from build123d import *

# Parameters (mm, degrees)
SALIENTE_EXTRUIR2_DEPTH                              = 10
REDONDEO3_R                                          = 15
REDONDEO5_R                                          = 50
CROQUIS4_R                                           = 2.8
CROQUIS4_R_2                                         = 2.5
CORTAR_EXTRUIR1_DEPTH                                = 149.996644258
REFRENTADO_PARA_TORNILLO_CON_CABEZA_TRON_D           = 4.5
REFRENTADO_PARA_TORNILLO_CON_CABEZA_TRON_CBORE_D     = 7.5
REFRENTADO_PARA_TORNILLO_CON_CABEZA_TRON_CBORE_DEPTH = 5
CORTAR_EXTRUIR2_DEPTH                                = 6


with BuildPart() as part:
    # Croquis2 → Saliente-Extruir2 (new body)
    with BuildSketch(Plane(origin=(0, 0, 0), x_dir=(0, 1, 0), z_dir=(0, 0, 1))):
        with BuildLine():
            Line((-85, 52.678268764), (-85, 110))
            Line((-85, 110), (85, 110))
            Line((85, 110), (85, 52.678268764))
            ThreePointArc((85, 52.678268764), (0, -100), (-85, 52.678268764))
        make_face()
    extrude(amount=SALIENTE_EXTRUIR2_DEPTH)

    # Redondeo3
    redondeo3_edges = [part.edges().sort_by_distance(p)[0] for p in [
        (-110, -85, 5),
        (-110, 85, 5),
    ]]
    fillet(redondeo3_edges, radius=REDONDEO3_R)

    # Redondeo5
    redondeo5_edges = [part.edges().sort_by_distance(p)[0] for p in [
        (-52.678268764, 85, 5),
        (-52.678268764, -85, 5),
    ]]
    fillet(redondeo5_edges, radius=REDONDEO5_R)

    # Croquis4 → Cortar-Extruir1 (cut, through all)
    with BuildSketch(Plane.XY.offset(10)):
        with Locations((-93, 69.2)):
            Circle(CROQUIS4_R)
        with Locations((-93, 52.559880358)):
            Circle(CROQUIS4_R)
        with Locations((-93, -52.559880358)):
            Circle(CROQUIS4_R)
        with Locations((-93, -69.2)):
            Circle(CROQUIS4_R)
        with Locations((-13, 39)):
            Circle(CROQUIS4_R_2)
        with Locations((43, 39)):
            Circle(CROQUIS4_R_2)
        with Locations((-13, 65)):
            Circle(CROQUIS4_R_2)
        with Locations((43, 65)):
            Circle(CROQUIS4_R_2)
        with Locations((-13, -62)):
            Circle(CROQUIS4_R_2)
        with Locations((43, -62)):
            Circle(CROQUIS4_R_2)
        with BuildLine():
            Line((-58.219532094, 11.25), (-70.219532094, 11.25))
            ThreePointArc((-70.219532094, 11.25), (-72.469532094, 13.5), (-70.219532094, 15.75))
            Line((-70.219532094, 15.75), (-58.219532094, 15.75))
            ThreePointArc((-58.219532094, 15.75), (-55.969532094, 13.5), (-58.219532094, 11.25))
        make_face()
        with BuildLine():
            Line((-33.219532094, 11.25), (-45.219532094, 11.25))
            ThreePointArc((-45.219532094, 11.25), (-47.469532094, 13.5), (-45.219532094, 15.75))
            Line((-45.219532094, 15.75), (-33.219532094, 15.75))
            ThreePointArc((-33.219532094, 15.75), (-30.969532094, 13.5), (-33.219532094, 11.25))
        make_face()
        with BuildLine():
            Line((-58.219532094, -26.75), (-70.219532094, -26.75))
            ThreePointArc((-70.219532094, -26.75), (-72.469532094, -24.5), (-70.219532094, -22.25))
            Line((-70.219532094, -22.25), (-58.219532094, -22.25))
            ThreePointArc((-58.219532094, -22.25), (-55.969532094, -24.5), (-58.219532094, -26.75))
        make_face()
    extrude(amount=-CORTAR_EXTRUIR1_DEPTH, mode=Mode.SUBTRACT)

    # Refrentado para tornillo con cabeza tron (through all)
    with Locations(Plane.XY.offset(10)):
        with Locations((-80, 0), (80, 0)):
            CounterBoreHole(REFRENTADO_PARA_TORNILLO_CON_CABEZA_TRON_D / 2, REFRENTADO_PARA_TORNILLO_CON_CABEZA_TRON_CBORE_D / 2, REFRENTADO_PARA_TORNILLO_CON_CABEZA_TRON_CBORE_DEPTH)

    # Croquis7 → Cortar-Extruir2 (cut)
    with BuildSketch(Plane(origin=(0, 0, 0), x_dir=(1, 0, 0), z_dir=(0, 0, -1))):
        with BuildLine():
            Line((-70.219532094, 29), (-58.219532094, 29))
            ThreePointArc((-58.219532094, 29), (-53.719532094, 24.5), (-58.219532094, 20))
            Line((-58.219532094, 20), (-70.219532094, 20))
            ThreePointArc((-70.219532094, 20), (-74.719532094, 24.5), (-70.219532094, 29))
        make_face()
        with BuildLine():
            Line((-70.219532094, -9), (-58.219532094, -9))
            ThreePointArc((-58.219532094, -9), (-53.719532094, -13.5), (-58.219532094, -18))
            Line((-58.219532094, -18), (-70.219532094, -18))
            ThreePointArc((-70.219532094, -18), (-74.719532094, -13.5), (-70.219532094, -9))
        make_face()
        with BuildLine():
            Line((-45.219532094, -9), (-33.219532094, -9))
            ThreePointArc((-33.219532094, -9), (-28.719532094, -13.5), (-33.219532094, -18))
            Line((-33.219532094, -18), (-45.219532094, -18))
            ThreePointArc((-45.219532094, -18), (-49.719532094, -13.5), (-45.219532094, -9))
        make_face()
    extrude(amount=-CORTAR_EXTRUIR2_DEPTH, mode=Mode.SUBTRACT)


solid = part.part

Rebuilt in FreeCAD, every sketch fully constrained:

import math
import FreeCAD as App
import Part
import Sketcher
from FreeCAD import Vector


def edges_at(feature, points):
    """Names of the edges that pass closest to the given points."""
    edges = feature.Shape.Edges
    near = lambda p: min(range(len(edges)), key=lambda i: edges[i].distToShape(Part.Vertex(*p))[0])
    return sorted({f"Edge{near(p) + 1}" for p in points})

doc = App.newDocument("Part")
body = doc.addObject("PartDesign::Body", "Body")

# Sketch on XY plane
sketch1 = body.newObject("Sketcher::SketchObject", "Sketch")
sketch1.AttachmentSupport = (doc.getObject("XY_Plane"), [""])
sketch1.MapMode = "FlatFace"
sketch1.addGeometry(Part.LineSegment(Vector(-110, -85, 0), Vector(-53, -85, 0)), False)
sketch1.addGeometry(Part.ArcOfCircle(Part.Circle(Vector(0, 0, 0), Vector(0, 0, 1), 100), math.radians(-122), math.radians(122)), False)
sketch1.addGeometry(Part.LineSegment(Vector(-53, 85, 0), Vector(-110, 85, 0)), False)
sketch1.addGeometry(Part.LineSegment(Vector(-110, 85, 0), Vector(-110, -85, 0)), False)
sketch1.addConstraint(Sketcher.Constraint("Coincident", 0, 2, 1, 1))
sketch1.addConstraint(Sketcher.Constraint("Coincident", 1, 2, 2, 1))
sketch1.addConstraint(Sketcher.Constraint("Coincident", 2, 2, 3, 1))
sketch1.addConstraint(Sketcher.Constraint("Coincident", 3, 2, 0, 1))
sketch1.addConstraint(Sketcher.Constraint("Horizontal", 0))
sketch1.addConstraint(Sketcher.Constraint("Horizontal", 2))
sketch1.addConstraint(Sketcher.Constraint("Vertical", 3))
sketch1.addConstraint(Sketcher.Constraint("Coincident", 1, 3, -1, 1))
sketch1.addConstraint(Sketcher.Constraint("Vertical", 0, 2, 1, 2))
sketch1.addConstraint(Sketcher.Constraint("Radius", 1, 100.0))
sketch1.addConstraint(Sketcher.Constraint("DistanceY", 3, 2, 3, 1, 170.0))
sketch1.addConstraint(Sketcher.Constraint("DistanceX", 2, 2, -1, 1, 110.0))
pad1 = body.newObject("PartDesign::Pad", "Pad")
pad1.Profile = sketch1
pad1.Length = 10
doc.recompute()

fillet = body.newObject("PartDesign::Fillet", "Fillet")
fillet.Base = (pad1, edges_at(pad1, [(-110, -85, 5), (-110, 85, 5)]))
fillet.Radius = 15
doc.recompute()

fillet2 = body.newObject("PartDesign::Fillet", "Fillet001")
fillet2.Base = (fillet, edges_at(fillet, [(-52.678, 85, 5), (-52.678, -85, 5)]))
fillet2.Radius = 50

# Sketch on XY plane
sketch2 = body.newObject("Sketcher::SketchObject", "Sketch001")
sketch2.AttachmentSupport = (doc.getObject("XY_Plane"), [""])
sketch2.MapMode = "FlatFace"
sketch2.AttachmentOffset = App.Placement(Vector(0, 0, 10), App.Rotation())
sketch2.addGeometry(Part.Circle(Vector(-93, 69.2, 0), Vector(0, 0, 1), 2.8), False)
sketch2.addGeometry(Part.Circle(Vector(-93, 52.6, 0), Vector(0, 0, 1), 2.8), False)
sketch2.addGeometry(Part.Circle(Vector(-93, -52.6, 0), Vector(0, 0, 1), 2.8), False)
sketch2.addGeometry(Part.Circle(Vector(-93, -69.2, 0), Vector(0, 0, 1), 2.8), False)
sketch2.addGeometry(Part.Circle(Vector(-13, 39, 0), Vector(0, 0, 1), 2.5), False)
sketch2.addGeometry(Part.Circle(Vector(43, 39, 0), Vector(0, 0, 1), 2.5), False)
sketch2.addGeometry(Part.Circle(Vector(-13, 65, 0), Vector(0, 0, 1), 2.5), False)
sketch2.addGeometry(Part.Circle(Vector(43, 65, 0), Vector(0, 0, 1), 2.5), False)
sketch2.addGeometry(Part.Circle(Vector(-13, -62, 0), Vector(0, 0, 1), 2.5), False)
sketch2.addGeometry(Part.Circle(Vector(43, -62, 0), Vector(0, 0, 1), 2.5), False)
sketch2.addGeometry(Part.LineSegment(Vector(-70.2, 11.2, 0), Vector(-58.2, 11.2, 0)), False)
sketch2.addGeometry(Part.ArcOfCircle(Part.Circle(Vector(-58.2, 13.5, 0), Vector(0, 0, 1), 2.2), math.radians(-90), math.radians(90)), False)
sketch2.addGeometry(Part.LineSegment(Vector(-58.2, 15.8, 0), Vector(-70.2, 15.8, 0)), False)
sketch2.addGeometry(Part.ArcOfCircle(Part.Circle(Vector(-70.2, 13.5, 0), Vector(0, 0, 1), 2.2), math.radians(90), math.radians(270)), False)
sketch2.addGeometry(Part.LineSegment(Vector(-45.2, 11.2, 0), Vector(-33.2, 11.2, 0)), False)
sketch2.addGeometry(Part.ArcOfCircle(Part.Circle(Vector(-33.2, 13.5, 0), Vector(0, 0, 1), 2.2), math.radians(-90), math.radians(90)), False)
sketch2.addGeometry(Part.LineSegment(Vector(-33.2, 15.8, 0), Vector(-45.2, 15.8, 0)), False)
sketch2.addGeometry(Part.ArcOfCircle(Part.Circle(Vector(-45.2, 13.5, 0), Vector(0, 0, 1), 2.2), math.radians(90), math.radians(270)), False)
sketch2.addGeometry(Part.LineSegment(Vector(-70.2, -26.8, 0), Vector(-58.2, -26.8, 0)), False)
sketch2.addGeometry(Part.ArcOfCircle(Part.Circle(Vector(-58.2, -24.5, 0), Vector(0, 0, 1), 2.2), math.radians(-90), math.radians(90)), False)
sketch2.addGeometry(Part.LineSegment(Vector(-58.2, -22.2, 0), Vector(-70.2, -22.2, 0)), False)
sketch2.addGeometry(Part.ArcOfCircle(Part.Circle(Vector(-70.2, -24.5, 0), Vector(0, 0, 1), 2.2), math.radians(90), math.radians(270)), False)
sketch2.addConstraint(Sketcher.Constraint("Tangent", 10, 2, 11, 1))
sketch2.addConstraint(Sketcher.Constraint("Tangent", 11, 2, 12, 1))
sketch2.addConstraint(Sketcher.Constraint("Tangent", 12, 2, 13, 1))
sketch2.addConstraint(Sketcher.Constraint("Tangent", 13, 2, 10, 1))
sketch2.addConstraint(Sketcher.Constraint("Tangent", 14, 2, 15, 1))
sketch2.addConstraint(Sketcher.Constraint("Tangent", 15, 2, 16, 1))
sketch2.addConstraint(Sketcher.Constraint("Tangent", 16, 2, 17, 1))
sketch2.addConstraint(Sketcher.Constraint("Tangent", 17, 2, 14, 1))
sketch2.addConstraint(Sketcher.Constraint("Tangent", 18, 2, 19, 1))
sketch2.addConstraint(Sketcher.Constraint("Tangent", 19, 2, 20, 1))
sketch2.addConstraint(Sketcher.Constraint("Tangent", 20, 2, 21, 1))
sketch2.addConstraint(Sketcher.Constraint("Tangent", 21, 2, 18, 1))
sketch2.addConstraint(Sketcher.Constraint("Horizontal", 10))
sketch2.addConstraint(Sketcher.Constraint("Horizontal", 12))
sketch2.addConstraint(Sketcher.Constraint("Horizontal", 14))
sketch2.addConstraint(Sketcher.Constraint("Horizontal", 16))
sketch2.addConstraint(Sketcher.Constraint("Horizontal", 18))
sketch2.addConstraint(Sketcher.Constraint("Horizontal", 20))
sketch2.addConstraint(Sketcher.Constraint("Equal", 0, 1))
sketch2.addConstraint(Sketcher.Constraint("Equal", 1, 2))
sketch2.addConstraint(Sketcher.Constraint("Equal", 2, 3))
sketch2.addConstraint(Sketcher.Constraint("Equal", 4, 5))
sketch2.addConstraint(Sketcher.Constraint("Equal", 5, 6))
sketch2.addConstraint(Sketcher.Constraint("Equal", 6, 7))
sketch2.addConstraint(Sketcher.Constraint("Equal", 7, 8))
sketch2.addConstraint(Sketcher.Constraint("Equal", 8, 9))
sketch2.addConstraint(Sketcher.Constraint("Equal", 13, 15))
sketch2.addConstraint(Sketcher.Constraint("Equal", 17, 19))
sketch2.addConstraint(Sketcher.Constraint("Symmetric", 1, 3, 2, 3, -1))
sketch2.addConstraint(Sketcher.Constraint("Symmetric", 0, 3, 3, 3, -1))
sketch2.addConstraint(Sketcher.Constraint("Horizontal", 4, 3, 5, 3))
sketch2.addConstraint(Sketcher.Constraint("Horizontal", 6, 3, 7, 3))
sketch2.addConstraint(Sketcher.Constraint("Horizontal", 8, 3, 9, 3))
sketch2.addConstraint(Sketcher.Constraint("Horizontal", 13, 3, 15, 3))
sketch2.addConstraint(Sketcher.Constraint("Vertical", 0, 3, 1, 3))
sketch2.addConstraint(Sketcher.Constraint("Vertical", 4, 3, 6, 3))
sketch2.addConstraint(Sketcher.Constraint("Vertical", 5, 3, 7, 3))
sketch2.addConstraint(Sketcher.Constraint("Vertical", 6, 3, 8, 3))
sketch2.addConstraint(Sketcher.Constraint("Vertical", 7, 3, 9, 3))
sketch2.addConstraint(Sketcher.Constraint("Vertical", 11, 3, 19, 3))
sketch2.addConstraint(Sketcher.Constraint("Vertical", 13, 3, 21, 3))
sketch2.addConstraint(Sketcher.Constraint("Equal", 12, 14))
sketch2.addConstraint(Sketcher.Constraint("Diameter", 4, 5.0))
sketch2.addConstraint(Sketcher.Constraint("Diameter", 0, 5.6))
sketch2.addConstraint(Sketcher.Constraint("DistanceX", 10, 1, 10, 2, 12.0))
sketch2.addConstraint(Sketcher.Constraint("Radius", 11, 2.25))
sketch2.addConstraint(Sketcher.Constraint("DistanceX", 0, 3, -1, 1, 93.0))
sketch2.addConstraint(Sketcher.Constraint("DistanceX", 4, 3, -1, 1, 13.0))
sketch2.addConstraint(Sketcher.Constraint("DistanceY", -1, 1, 4, 3, 39.0))
sketch2.addConstraint(Sketcher.Constraint("DistanceX", -1, 1, 5, 3, 43.0))
sketch2.addConstraint(Sketcher.Constraint("DistanceY", -1, 1, 6, 3, 65.0))
sketch2.addConstraint(Sketcher.Constraint("DistanceY", 8, 3, -1, 1, 62.0))
sketch2.addConstraint(Sketcher.Constraint("DistanceX", 11, 3, 15, 3, 25.0))
sketch2.addConstraint(Sketcher.Constraint("DistanceY", 19, 3, 11, 3, 38.0))
sketch2.addConstraint(Sketcher.Constraint("DistanceY", -1, 1, 0, 3, 69.2))
sketch2.addConstraint(Sketcher.Constraint("DistanceY", -1, 1, 11, 3, 13.5))
sketch2.addConstraint(Sketcher.Constraint("DistanceY", -1, 1, 1, 3, 52.55988))
sketch2.addConstraint(Sketcher.Constraint("DistanceX", 11, 3, -1, 1, 58.219532))
pocket1 = body.newObject("PartDesign::Pocket", "Pocket")
pocket1.Profile = sketch2
pocket1.Type = "ThroughAll"

# Sketch on XY plane
sketch3 = body.newObject("Sketcher::SketchObject", "Sketch002")
sketch3.AttachmentSupport = (doc.getObject("XY_Plane"), [""])
sketch3.MapMode = "FlatFace"
sketch3.AttachmentOffset = App.Placement(Vector(0, 0, 10), App.Rotation())
sketch3.addGeometry(Part.Circle(Vector(-80, 0, 0), Vector(0, 0, 1), 2.2), False)
sketch3.addGeometry(Part.Circle(Vector(80, 0, 0), Vector(0, 0, 1), 2.2), False)
sketch3.addConstraint(Sketcher.Constraint("Equal", 0, 1))
sketch3.addConstraint(Sketcher.Constraint("Symmetric", 0, 3, 1, 3, -1, 1))
sketch3.addConstraint(Sketcher.Constraint("PointOnObject", 0, 3, -1))
sketch3.addConstraint(Sketcher.Constraint("Diameter", 0, 4.5))
sketch3.addConstraint(Sketcher.Constraint("DistanceX", 0, 3, -1, 1, 80.0))
doc.recompute()
hole = body.newObject("PartDesign::Hole", "Hole")
hole.Profile = sketch3
hole.ThreadType = "None"
hole.Diameter = 4.5
hole.DepthType = "ThroughAll"
hole.HoleCutType = "Counterbore"
hole.HoleCutDiameter = 7.5
hole.HoleCutDepth = 5

# Sketch on XY plane
sketch4 = body.newObject("Sketcher::SketchObject", "Sketch003")
sketch4.AttachmentSupport = (doc.getObject("XY_Plane"), [""])
sketch4.MapMode = "FlatFace"
sketch4.addGeometry(Part.LineSegment(Vector(-58.2, -29, 0), Vector(-70.2, -29, 0)), False)
sketch4.addGeometry(Part.ArcOfCircle(Part.Circle(Vector(-70.2, -24.5, 0), Vector(0, 0, 1), 4.5), math.radians(90), math.radians(270)), False)
sketch4.addGeometry(Part.LineSegment(Vector(-70.2, -20, 0), Vector(-58.2, -20, 0)), False)
sketch4.addGeometry(Part.ArcOfCircle(Part.Circle(Vector(-58.2, -24.5, 0), Vector(0, 0, 1), 4.5), math.radians(-90), math.radians(90)), False)
sketch4.addGeometry(Part.LineSegment(Vector(-58.2, 9, 0), Vector(-70.2, 9, 0)), False)
sketch4.addGeometry(Part.ArcOfCircle(Part.Circle(Vector(-70.2, 13.5, 0), Vector(0, 0, 1), 4.5), math.radians(90), math.radians(270)), False)
sketch4.addGeometry(Part.LineSegment(Vector(-70.2, 18, 0), Vector(-58.2, 18, 0)), False)
sketch4.addGeometry(Part.ArcOfCircle(Part.Circle(Vector(-58.2, 13.5, 0), Vector(0, 0, 1), 4.5), math.radians(-90), math.radians(90)), False)
sketch4.addGeometry(Part.LineSegment(Vector(-33.2, 9, 0), Vector(-45.2, 9, 0)), False)
sketch4.addGeometry(Part.ArcOfCircle(Part.Circle(Vector(-45.2, 13.5, 0), Vector(0, 0, 1), 4.5), math.radians(90), math.radians(270)), False)
sketch4.addGeometry(Part.LineSegment(Vector(-45.2, 18, 0), Vector(-33.2, 18, 0)), False)
sketch4.addGeometry(Part.ArcOfCircle(Part.Circle(Vector(-33.2, 13.5, 0), Vector(0, 0, 1), 4.5), math.radians(-90), math.radians(90)), False)
sketch4.addConstraint(Sketcher.Constraint("Tangent", 0, 2, 1, 2))
sketch4.addConstraint(Sketcher.Constraint("Tangent", 1, 1, 2, 1))
sketch4.addConstraint(Sketcher.Constraint("Tangent", 2, 2, 3, 2))
sketch4.addConstraint(Sketcher.Constraint("Tangent", 3, 1, 0, 1))
sketch4.addConstraint(Sketcher.Constraint("Tangent", 4, 2, 5, 2))
sketch4.addConstraint(Sketcher.Constraint("Tangent", 5, 1, 6, 1))
sketch4.addConstraint(Sketcher.Constraint("Tangent", 6, 2, 7, 2))
sketch4.addConstraint(Sketcher.Constraint("Tangent", 7, 1, 4, 1))
sketch4.addConstraint(Sketcher.Constraint("Tangent", 8, 2, 9, 2))
sketch4.addConstraint(Sketcher.Constraint("Tangent", 9, 1, 10, 1))
sketch4.addConstraint(Sketcher.Constraint("Tangent", 10, 2, 11, 2))
sketch4.addConstraint(Sketcher.Constraint("Tangent", 11, 1, 8, 1))
sketch4.addConstraint(Sketcher.Constraint("Horizontal", 0))
sketch4.addConstraint(Sketcher.Constraint("Horizontal", 2))
sketch4.addConstraint(Sketcher.Constraint("Horizontal", 4))
sketch4.addConstraint(Sketcher.Constraint("Horizontal", 6))
sketch4.addConstraint(Sketcher.Constraint("Horizontal", 8))
sketch4.addConstraint(Sketcher.Constraint("Horizontal", 10))
sketch4.addConstraint(Sketcher.Constraint("Equal", 3, 5))
sketch4.addConstraint(Sketcher.Constraint("Equal", 7, 9))
sketch4.addConstraint(Sketcher.Constraint("Horizontal", 7, 3, 9, 3))
sketch4.addConstraint(Sketcher.Constraint("Vertical", 1, 3, 5, 3))
sketch4.addConstraint(Sketcher.Constraint("Vertical", 3, 3, 7, 3))
sketch4.addConstraint(Sketcher.Constraint("Equal", 6, 8))
sketch4.addConstraint(Sketcher.Constraint("Radius", 1, 4.5))
sketch4.addConstraint(Sketcher.Constraint("DistanceX", 0, 2, 0, 1, 12.0))
sketch4.addConstraint(Sketcher.Constraint("DistanceY", 0, 2, -1, 1, 29.0))
sketch4.addConstraint(Sketcher.Constraint("DistanceY", -1, 1, 4, 2, 9.0))
sketch4.addConstraint(Sketcher.Constraint("DistanceX", 7, 3, 9, 3, 13.0))
sketch4.addConstraint(Sketcher.Constraint("DistanceX", 1, 3, -1, 1, 70.219532))
pocket2 = body.newObject("PartDesign::Pocket", "Pocket001")
pocket2.Profile = sketch4
pocket2.Length = 6
pocket2.Reversed = True

doc.recompute()
